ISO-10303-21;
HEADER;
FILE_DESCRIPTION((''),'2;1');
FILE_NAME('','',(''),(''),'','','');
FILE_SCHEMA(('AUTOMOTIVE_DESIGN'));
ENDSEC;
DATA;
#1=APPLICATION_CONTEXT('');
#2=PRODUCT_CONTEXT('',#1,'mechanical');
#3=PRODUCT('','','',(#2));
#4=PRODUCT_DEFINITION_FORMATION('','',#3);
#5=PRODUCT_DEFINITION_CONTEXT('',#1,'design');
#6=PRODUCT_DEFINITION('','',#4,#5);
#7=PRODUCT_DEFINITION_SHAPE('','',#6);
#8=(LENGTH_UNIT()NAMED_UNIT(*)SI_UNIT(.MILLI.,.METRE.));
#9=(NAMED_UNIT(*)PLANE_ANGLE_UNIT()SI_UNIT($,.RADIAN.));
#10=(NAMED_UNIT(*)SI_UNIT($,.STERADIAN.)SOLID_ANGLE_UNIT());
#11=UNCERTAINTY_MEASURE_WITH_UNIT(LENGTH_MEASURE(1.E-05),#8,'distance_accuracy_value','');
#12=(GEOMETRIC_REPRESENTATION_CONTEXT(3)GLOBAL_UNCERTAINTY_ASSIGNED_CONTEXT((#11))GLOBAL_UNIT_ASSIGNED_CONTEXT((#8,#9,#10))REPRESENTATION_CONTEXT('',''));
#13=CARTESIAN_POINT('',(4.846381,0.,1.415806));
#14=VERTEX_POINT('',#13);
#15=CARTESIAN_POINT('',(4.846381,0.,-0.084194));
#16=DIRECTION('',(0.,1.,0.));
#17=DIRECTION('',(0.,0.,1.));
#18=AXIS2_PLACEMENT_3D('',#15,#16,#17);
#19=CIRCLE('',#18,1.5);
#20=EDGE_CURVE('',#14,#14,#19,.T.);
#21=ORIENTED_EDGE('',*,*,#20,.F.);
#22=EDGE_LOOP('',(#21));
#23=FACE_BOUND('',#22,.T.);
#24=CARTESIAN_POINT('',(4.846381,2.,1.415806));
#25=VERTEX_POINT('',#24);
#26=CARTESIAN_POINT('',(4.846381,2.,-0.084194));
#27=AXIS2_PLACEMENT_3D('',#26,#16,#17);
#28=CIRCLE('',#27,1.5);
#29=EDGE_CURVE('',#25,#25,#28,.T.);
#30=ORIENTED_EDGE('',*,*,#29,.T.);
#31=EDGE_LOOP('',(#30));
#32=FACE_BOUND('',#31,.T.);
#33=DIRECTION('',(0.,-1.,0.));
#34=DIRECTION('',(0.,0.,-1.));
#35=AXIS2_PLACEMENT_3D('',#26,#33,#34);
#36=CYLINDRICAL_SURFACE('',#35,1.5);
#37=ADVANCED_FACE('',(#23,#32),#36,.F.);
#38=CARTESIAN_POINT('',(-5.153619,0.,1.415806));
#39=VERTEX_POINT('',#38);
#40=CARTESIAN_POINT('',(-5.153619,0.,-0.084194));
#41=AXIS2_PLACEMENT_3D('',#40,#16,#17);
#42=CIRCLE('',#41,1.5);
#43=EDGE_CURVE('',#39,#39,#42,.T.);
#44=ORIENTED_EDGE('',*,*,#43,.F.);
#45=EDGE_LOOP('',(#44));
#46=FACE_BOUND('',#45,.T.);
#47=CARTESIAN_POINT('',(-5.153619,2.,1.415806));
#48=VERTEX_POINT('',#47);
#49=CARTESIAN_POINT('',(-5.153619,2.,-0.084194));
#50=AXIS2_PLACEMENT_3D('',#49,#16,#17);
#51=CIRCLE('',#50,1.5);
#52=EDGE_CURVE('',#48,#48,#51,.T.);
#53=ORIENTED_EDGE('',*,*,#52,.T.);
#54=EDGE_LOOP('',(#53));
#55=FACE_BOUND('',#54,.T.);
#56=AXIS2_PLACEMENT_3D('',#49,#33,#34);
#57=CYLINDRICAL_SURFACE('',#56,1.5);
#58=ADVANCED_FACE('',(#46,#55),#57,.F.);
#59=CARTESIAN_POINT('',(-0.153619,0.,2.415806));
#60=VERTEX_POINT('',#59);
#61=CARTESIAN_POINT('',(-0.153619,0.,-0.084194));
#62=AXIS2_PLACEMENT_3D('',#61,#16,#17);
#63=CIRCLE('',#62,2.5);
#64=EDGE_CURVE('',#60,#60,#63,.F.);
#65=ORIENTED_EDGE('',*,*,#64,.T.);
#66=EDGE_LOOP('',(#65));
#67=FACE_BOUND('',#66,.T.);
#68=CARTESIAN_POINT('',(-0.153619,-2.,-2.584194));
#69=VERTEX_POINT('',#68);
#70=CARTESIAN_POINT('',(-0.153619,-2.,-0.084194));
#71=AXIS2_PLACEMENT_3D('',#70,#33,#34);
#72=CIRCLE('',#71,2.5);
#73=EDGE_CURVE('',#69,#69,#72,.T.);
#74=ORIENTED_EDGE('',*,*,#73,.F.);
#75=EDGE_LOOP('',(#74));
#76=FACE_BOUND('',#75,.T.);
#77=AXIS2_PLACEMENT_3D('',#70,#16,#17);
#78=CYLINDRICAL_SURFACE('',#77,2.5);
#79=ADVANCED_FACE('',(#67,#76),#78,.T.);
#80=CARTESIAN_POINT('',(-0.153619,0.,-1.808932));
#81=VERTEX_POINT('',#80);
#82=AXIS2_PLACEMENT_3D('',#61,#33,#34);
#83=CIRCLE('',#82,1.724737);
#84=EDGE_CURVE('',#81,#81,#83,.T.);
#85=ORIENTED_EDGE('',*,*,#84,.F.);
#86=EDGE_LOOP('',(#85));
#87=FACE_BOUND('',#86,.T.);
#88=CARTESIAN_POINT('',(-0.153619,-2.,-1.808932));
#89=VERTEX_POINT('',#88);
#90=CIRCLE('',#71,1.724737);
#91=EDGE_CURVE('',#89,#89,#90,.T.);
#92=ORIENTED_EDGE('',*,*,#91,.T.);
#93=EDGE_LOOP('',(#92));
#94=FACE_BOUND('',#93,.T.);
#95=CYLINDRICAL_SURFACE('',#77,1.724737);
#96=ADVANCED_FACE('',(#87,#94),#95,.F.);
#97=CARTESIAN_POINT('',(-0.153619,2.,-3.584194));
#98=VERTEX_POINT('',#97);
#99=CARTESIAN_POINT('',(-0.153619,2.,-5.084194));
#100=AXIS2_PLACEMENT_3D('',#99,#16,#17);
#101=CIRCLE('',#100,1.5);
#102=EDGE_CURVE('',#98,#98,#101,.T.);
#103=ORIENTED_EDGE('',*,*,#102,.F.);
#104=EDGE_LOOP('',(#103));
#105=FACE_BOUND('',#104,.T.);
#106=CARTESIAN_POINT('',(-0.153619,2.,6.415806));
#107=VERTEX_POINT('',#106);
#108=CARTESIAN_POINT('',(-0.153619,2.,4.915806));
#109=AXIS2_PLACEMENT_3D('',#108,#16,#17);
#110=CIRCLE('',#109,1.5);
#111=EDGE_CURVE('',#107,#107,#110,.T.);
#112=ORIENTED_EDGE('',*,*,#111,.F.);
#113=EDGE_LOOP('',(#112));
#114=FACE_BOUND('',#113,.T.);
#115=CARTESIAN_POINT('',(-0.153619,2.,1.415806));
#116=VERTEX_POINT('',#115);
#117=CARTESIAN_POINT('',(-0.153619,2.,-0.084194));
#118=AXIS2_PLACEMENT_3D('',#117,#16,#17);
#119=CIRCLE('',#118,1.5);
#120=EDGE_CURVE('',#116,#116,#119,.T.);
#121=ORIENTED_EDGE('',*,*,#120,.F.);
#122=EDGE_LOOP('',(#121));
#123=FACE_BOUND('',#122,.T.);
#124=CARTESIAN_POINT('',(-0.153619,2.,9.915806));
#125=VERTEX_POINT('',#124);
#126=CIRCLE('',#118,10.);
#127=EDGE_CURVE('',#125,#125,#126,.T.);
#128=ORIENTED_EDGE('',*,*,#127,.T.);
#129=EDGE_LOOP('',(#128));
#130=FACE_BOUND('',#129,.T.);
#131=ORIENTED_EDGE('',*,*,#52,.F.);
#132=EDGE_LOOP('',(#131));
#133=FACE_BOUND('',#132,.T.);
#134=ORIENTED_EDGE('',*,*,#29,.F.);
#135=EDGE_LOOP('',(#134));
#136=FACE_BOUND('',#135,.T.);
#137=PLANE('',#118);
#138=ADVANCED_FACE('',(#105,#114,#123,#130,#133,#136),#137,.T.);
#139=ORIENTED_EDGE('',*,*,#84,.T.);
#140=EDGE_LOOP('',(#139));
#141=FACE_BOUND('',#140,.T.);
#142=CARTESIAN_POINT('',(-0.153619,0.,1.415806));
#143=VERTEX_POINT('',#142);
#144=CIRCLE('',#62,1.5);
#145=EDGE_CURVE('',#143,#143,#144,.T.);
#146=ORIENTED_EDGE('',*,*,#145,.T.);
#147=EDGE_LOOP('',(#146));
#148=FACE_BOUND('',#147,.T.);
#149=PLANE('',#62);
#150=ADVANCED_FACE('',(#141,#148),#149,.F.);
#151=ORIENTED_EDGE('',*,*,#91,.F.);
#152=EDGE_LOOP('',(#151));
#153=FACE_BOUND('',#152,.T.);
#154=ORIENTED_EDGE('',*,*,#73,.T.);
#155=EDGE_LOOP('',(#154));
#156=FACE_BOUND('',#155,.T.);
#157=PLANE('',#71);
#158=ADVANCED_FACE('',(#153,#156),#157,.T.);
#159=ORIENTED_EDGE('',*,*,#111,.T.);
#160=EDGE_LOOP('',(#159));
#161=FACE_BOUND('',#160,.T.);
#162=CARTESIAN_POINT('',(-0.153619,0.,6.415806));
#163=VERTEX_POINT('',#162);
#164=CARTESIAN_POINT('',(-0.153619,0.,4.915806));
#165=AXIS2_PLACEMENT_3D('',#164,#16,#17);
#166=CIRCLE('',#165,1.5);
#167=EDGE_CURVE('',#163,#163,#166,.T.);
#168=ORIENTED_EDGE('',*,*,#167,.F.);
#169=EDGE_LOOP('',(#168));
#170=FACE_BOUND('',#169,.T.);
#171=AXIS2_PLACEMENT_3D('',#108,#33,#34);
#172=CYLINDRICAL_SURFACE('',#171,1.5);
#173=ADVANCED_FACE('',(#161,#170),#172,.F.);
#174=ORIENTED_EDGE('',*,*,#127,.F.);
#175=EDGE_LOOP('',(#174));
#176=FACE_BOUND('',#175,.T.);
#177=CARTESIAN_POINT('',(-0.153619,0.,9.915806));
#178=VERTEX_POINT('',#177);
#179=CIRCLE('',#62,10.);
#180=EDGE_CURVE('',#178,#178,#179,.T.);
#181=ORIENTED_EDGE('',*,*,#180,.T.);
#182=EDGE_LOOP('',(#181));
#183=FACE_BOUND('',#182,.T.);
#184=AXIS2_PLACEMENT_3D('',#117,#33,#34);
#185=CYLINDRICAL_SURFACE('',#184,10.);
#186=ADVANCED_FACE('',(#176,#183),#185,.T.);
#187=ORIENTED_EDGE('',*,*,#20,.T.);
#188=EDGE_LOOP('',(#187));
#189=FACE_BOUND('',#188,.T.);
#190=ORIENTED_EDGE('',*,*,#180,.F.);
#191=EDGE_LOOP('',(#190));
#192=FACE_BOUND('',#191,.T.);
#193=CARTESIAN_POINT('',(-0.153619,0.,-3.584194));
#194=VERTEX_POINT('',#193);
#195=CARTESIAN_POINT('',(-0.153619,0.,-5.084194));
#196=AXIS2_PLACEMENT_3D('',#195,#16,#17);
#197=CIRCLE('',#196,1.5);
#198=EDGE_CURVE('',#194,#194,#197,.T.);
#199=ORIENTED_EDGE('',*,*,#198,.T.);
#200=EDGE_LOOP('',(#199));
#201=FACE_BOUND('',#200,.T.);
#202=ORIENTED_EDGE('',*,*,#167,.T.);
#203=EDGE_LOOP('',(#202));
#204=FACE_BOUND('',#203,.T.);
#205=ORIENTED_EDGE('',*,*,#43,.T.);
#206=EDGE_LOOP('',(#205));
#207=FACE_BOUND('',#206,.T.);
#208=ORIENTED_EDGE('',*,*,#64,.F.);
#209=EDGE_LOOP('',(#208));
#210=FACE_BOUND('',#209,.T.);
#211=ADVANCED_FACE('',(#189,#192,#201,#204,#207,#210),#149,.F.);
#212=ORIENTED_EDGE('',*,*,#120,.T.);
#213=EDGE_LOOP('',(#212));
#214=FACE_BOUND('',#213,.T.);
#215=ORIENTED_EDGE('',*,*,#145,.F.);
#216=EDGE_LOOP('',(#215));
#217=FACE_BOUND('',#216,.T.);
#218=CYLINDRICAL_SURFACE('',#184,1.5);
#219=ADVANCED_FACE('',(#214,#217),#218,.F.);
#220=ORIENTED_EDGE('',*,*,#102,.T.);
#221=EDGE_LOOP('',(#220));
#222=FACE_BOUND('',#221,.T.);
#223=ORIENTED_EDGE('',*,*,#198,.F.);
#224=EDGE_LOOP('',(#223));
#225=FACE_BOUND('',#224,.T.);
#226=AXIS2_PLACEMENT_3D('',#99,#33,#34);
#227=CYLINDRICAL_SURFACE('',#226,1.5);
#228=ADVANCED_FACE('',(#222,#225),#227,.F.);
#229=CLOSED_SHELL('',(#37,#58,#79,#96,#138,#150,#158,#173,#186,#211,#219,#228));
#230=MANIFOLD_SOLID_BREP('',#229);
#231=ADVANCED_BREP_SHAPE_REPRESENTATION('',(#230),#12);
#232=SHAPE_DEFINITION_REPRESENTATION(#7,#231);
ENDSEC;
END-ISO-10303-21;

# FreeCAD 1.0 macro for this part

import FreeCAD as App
import Part
import Sketcher
from FreeCAD import Vector
Q = App.Units.Quantity

doc = App.newDocument("Part")
body = doc.addObject("PartDesign::Body", "Body")

sketch1 = body.newObject("Sketcher::SketchObject", "Sketch")
sketch1.AttachmentSupport = (doc.getObject("XZ_Plane"), [""])
sketch1.MapMode = "FlatFace"
sketch1.addGeometry([
    Part.Circle(Vector(-0.2, -0.1, 0), Vector(0, 0, 1), 10),
    Part.Circle(Vector(-0.2, -5.1, 0), Vector(0, 0, 1), 1.5),
    Part.Circle(Vector(-5.2, -0.1, 0), Vector(0, 0, 1), 1.5),
    Part.Circle(Vector(4.8, -0.1, 0), Vector(0, 0, 1), 1.5),
    Part.Circle(Vector(-0.2, -0.1, 0), Vector(0, 0, 1), 1.5),
    Part.Circle(Vector(-0.2, 4.9, 0), Vector(0, 0, 1), 1.5),
], False)
sketch1.addConstraint([
    Sketcher.Constraint("Coincident", 4, 3, 0, 3),
    Sketcher.Constraint("Equal", 1, 2),
    Sketcher.Constraint("Equal", 2, 3),
    Sketcher.Constraint("Equal", 3, 4),
    Sketcher.Constraint("Equal", 4, 5),
    Sketcher.Constraint("Horizontal", 0, 3, 2, 3),
    Sketcher.Constraint("Horizontal", 2, 3, 3, 3),
    Sketcher.Constraint("Vertical", 0, 3, 1, 3),
    Sketcher.Constraint("Vertical", 4, 3, 5, 3),
    Sketcher.Constraint("Diameter", 0, Q("20 mm")),
    Sketcher.Constraint("Diameter", 1, Q("3 mm")),
    Sketcher.Constraint("DistanceY", 1, 3, 0, 3, Q("5 mm")),
    Sketcher.Constraint("DistanceX", 2, 3, 0, 3, Q("5 mm")),
    Sketcher.Constraint("DistanceX", 0, 3, 3, 3, Q("5 mm")),
    Sketcher.Constraint("DistanceY", 0, 3, 5, 3, Q("5 mm")),
    Sketcher.Constraint("DistanceX", 0, 3, -1, 1, Q("0.153619 mm")),
    Sketcher.Constraint("DistanceY", 0, 3, -1, 1, Q("0.084194 mm")),
])
pad1 = body.newObject("PartDesign::Pad", "Pad")
pad1.Profile = sketch1
pad1.Length = 2
pad1.Reversed = True

sketch2 = body.newObject("Sketcher::SketchObject", "Sketch001")
sketch2.AttachmentSupport = (doc.getObject("XZ_Plane"), [""])
sketch2.MapMode = "FlatFace"
sketch2.addGeometry([
    Part.Circle(Vector(-0.2, -0.1, 0), Vector(0, 0, 1), 2.5),
    Part.Circle(Vector(-0.2, -0.1, 0), Vector(0, 0, 1), 1.7),
], False)
sketch2.addConstraint([
    Sketcher.Constraint("Coincident", 1, 3, 0, 3),
    Sketcher.Constraint("Diameter", 0, Q("5 mm")),
    Sketcher.Constraint("Diameter", 1, Q("3.449474 mm")),
    Sketcher.Constraint("DistanceX", 0, 3, -1, 1, Q("0.153619 mm")),
    Sketcher.Constraint("DistanceY", 0, 3, -1, 1, Q("0.084194 mm")),
])
pad2 = body.newObject("PartDesign::Pad", "Pad001")
pad2.Profile = sketch2
pad2.Length = 2

doc.recompute()
